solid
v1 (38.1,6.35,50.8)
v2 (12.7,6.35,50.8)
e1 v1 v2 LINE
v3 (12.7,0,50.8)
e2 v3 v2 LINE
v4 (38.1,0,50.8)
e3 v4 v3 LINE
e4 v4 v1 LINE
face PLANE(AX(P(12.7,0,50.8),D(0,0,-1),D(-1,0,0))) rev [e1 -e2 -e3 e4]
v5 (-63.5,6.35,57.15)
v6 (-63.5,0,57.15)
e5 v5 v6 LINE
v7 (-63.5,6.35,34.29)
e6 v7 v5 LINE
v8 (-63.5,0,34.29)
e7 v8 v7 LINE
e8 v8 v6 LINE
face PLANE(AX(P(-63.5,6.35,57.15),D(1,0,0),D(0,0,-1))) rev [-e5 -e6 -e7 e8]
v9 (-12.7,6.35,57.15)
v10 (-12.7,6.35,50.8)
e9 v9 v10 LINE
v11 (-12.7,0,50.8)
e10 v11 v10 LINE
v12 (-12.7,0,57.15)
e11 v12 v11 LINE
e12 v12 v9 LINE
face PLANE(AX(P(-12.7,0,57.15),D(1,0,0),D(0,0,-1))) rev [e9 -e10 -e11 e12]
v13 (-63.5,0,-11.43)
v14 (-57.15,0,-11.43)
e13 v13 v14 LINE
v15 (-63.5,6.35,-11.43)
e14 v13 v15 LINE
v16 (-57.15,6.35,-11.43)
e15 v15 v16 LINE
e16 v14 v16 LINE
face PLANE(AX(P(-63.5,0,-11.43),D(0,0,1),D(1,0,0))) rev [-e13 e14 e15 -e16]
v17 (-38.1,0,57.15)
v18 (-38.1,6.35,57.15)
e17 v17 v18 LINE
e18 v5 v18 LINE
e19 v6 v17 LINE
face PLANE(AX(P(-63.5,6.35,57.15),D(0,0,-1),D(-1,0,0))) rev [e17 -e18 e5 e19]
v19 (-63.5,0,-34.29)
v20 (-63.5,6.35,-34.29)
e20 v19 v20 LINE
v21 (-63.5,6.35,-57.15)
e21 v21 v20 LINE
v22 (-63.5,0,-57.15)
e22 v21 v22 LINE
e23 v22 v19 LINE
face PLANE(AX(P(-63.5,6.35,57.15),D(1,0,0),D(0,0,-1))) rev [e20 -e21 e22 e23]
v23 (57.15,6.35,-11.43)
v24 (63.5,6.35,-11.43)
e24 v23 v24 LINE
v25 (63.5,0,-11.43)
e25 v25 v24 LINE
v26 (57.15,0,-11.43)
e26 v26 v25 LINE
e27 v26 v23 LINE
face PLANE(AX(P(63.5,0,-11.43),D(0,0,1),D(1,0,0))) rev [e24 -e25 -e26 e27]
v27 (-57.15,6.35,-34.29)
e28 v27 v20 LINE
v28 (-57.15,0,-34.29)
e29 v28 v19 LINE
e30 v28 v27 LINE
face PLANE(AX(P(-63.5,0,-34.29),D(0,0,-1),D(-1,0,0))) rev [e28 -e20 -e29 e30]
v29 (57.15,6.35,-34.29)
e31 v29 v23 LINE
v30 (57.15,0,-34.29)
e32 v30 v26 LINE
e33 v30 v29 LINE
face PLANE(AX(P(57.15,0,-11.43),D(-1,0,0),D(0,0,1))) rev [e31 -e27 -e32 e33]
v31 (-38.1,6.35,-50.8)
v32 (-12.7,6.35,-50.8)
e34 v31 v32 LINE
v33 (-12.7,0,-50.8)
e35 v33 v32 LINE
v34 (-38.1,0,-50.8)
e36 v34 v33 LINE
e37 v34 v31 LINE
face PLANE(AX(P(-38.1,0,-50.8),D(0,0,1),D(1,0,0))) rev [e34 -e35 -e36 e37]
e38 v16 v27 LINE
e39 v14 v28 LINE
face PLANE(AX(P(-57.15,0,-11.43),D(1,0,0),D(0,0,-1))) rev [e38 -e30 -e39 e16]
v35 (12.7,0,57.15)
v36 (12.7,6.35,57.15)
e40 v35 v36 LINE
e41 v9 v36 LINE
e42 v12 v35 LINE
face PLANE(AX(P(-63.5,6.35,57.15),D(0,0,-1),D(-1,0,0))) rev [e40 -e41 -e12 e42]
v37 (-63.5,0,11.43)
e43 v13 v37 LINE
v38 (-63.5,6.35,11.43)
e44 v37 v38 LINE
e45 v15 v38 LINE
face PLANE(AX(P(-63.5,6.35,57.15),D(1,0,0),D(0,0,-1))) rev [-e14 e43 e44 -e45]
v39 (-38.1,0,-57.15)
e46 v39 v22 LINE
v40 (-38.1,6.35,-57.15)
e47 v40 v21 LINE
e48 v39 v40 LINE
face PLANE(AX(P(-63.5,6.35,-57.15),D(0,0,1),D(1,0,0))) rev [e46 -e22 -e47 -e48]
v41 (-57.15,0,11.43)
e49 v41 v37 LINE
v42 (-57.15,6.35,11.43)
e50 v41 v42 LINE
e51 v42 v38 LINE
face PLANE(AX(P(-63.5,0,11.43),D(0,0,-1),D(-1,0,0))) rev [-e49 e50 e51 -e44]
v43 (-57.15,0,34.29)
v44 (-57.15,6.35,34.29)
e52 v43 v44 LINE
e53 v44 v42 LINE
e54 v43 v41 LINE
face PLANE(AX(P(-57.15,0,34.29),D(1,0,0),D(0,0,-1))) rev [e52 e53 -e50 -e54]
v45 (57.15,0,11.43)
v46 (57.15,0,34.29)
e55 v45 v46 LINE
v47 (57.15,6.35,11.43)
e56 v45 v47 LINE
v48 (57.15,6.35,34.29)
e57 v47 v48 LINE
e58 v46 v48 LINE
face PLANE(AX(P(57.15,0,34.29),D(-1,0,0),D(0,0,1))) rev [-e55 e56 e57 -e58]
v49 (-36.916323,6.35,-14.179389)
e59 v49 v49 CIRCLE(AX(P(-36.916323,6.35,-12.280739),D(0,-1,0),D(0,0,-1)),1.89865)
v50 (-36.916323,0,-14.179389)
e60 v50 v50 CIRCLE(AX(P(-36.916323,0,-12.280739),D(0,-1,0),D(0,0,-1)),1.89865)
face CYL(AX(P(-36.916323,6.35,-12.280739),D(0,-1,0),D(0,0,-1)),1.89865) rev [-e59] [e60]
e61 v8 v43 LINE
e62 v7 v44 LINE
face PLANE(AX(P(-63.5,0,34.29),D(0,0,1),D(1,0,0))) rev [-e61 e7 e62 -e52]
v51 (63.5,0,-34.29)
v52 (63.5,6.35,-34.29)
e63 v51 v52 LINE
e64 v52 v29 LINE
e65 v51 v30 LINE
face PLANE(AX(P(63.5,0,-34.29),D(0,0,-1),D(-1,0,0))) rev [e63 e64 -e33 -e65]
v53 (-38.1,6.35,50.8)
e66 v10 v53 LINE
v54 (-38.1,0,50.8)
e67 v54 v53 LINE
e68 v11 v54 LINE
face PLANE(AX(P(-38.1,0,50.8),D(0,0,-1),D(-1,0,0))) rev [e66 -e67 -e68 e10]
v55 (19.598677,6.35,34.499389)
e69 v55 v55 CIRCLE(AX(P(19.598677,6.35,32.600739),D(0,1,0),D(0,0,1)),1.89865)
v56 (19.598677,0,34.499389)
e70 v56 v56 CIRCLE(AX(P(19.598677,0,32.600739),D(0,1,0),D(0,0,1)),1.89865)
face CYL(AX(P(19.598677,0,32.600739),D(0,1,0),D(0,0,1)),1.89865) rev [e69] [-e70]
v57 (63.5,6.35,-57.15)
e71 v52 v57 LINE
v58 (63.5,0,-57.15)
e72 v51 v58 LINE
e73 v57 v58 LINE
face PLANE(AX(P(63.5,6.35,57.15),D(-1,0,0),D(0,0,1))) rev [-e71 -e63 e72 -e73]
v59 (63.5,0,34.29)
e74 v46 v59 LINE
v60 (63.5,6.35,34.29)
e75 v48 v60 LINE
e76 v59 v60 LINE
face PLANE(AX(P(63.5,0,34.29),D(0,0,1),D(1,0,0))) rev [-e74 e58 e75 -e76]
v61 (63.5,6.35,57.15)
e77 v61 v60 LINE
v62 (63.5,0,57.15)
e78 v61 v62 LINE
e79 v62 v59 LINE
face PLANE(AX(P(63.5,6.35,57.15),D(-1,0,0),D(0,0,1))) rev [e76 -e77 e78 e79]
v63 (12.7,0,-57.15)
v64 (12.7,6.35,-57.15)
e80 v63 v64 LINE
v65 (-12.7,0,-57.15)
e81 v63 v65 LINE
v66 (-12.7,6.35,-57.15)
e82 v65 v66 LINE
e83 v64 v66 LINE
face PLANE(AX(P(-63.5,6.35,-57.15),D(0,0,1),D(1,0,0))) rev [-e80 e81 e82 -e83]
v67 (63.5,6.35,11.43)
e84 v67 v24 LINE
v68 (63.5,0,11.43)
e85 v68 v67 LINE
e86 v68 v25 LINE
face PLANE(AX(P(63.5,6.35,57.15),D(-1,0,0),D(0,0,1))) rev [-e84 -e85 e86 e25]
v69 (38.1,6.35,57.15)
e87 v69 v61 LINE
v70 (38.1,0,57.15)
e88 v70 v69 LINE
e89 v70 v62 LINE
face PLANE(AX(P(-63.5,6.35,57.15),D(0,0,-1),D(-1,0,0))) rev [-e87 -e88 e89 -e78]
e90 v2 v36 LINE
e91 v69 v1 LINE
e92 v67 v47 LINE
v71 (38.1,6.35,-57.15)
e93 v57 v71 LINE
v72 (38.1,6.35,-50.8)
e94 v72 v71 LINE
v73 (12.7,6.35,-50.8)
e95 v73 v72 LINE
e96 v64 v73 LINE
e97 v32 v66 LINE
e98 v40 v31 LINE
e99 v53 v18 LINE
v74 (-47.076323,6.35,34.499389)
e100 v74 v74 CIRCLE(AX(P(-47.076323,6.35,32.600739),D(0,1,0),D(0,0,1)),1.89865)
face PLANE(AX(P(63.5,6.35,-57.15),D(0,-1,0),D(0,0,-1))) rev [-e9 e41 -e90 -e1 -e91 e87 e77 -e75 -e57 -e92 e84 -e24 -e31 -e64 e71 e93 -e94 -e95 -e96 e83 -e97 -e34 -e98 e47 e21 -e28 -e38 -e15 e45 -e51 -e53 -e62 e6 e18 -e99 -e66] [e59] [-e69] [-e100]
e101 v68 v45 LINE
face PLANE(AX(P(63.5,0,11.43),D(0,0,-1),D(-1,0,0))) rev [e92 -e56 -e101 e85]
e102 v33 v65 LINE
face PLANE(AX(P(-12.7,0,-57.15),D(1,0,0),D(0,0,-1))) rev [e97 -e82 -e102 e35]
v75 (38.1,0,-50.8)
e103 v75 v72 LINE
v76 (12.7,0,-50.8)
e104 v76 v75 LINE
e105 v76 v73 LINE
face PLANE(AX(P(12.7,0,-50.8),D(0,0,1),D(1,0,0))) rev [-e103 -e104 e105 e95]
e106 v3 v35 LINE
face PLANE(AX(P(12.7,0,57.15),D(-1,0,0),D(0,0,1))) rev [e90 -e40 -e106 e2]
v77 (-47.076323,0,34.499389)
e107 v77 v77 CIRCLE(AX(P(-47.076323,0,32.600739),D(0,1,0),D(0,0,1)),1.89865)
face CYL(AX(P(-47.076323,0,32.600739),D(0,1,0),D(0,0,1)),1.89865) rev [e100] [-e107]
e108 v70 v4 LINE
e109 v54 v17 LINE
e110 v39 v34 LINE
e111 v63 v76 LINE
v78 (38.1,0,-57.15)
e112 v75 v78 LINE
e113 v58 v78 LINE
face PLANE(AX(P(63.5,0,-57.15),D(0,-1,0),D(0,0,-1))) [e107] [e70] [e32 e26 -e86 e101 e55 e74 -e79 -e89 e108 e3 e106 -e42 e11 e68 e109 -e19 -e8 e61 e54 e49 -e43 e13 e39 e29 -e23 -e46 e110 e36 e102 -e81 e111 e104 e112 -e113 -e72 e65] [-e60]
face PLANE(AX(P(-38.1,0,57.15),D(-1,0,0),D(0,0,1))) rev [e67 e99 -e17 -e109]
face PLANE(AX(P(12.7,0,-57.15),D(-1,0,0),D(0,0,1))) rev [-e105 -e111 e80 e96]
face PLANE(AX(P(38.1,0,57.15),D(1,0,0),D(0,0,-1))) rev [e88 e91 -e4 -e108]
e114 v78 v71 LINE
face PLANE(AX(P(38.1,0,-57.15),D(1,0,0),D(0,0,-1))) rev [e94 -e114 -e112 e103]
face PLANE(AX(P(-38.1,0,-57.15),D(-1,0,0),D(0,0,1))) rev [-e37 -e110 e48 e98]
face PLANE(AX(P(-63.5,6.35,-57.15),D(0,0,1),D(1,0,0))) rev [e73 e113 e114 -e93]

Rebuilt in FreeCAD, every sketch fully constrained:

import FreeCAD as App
import Part
import Sketcher
Q = App.Units.Quantity


def add_polygon(sketch, points):
    """Adds a closed chain of lines whose ends are joined by coincident constraints."""
    first, n = sketch.GeometryCount, len(points)
    for a, b in zip(points, points[1:] + points[:1]):
        sketch.addGeometry(Part.LineSegment(App.Vector(*a, 0), App.Vector(*b, 0)), False)
    for i in range(n):
        sketch.addConstraint(Sketcher.Constraint("Coincident", first + i, 2, first + (i + 1) % n, 1))

doc = App.newDocument("Part")
body = doc.addObject("PartDesign::Body", "Body")

sketch1 = body.newObject("Sketcher::SketchObject", "Sketch")
sketch1.AttachmentSupport = (doc.getObject("XZ_Plane"), [""])
sketch1.MapMode = "FlatFace"
add_polygon(sketch1, [(-63.5, -57.15), (-63.5, 57.15), (63.5, 57.15), (63.5, -57.15)])
sketch1.addConstraint([
    Sketcher.Constraint("Vertical", 0),
    Sketcher.Constraint("Horizontal", 1),
    Sketcher.Constraint("Vertical", 2),
    Sketcher.Constraint("Horizontal", 3),
    Sketcher.Constraint("Symmetric", 0, 2, 2, 2, -1, 1),
    Sketcher.Constraint("DistanceX", 1, 1, 1, 2, Q("5 in")),
    Sketcher.Constraint("DistanceY", 0, 1, 0, 2, Q("4.5 in")),
])
pad1 = body.newObject("PartDesign::Pad", "Pad")
pad1.Profile = sketch1
pad1.Length = Q("0.25 in")
pad1.Reversed = True

sketch2 = body.newObject("Sketcher::SketchObject", "Sketch001")
sketch2.AttachmentSupport = (doc.getObject("XZ_Plane"), [""])
sketch2.MapMode = "FlatFace"
sketch2.AttachmentOffset = App.Placement(App.Vector(0, 0, -0.25 * 25.4), App.Rotation())
add_polygon(sketch2, [(-63.5, 11.43), (-63.5, 34.29), (-57.15, 34.29), (-57.15, 11.43)])
add_polygon(sketch2, [(-63.5, -34.29), (-63.5, -11.43), (-57.15, -11.43), (-57.15, -34.29)])
add_polygon(sketch2, [(-38.1, -57.15), (-38.1, -50.8), (-12.7, -50.8), (-12.7, -57.15)])
add_polygon(sketch2, [(12.7, -57.15), (12.7, -50.8), (38.1, -50.8), (38.1, -57.15)])
add_polygon(sketch2, [(57.15, -34.29), (57.15, -11.43), (63.5, -11.43), (63.5, -34.29)])
add_polygon(sketch2, [(57.15, 11.43), (57.15, 34.29), (63.5, 34.29), (63.5, 11.43)])
add_polygon(sketch2, [(12.7, 50.8), (12.7, 57.15), (38.1, 57.15), (38.1, 50.8)])
add_polygon(sketch2, [(-38.1, 50.8), (-38.1, 57.15), (-12.7, 57.15), (-12.7, 50.8)])
sketch2.addConstraint([
    Sketcher.Constraint("Vertical", 0),
    Sketcher.Constraint("Horizontal", 1),
    Sketcher.Constraint("Vertical", 2),
    Sketcher.Constraint("Horizontal", 3),
    Sketcher.Constraint("Vertical", 4),
    Sketcher.Constraint("Horizontal", 5),
    Sketcher.Constraint("Vertical", 6),
    Sketcher.Constraint("Horizontal", 7),
    Sketcher.Constraint("Vertical", 8),
    Sketcher.Constraint("Horizontal", 9),
    Sketcher.Constraint("Vertical", 10),
    Sketcher.Constraint("Horizontal", 11),
    Sketcher.Constraint("Vertical", 12),
    Sketcher.Constraint("Horizontal", 13),
    Sketcher.Constraint("Vertical", 14),
    Sketcher.Constraint("Horizontal", 15),
    Sketcher.Constraint("Vertical", 16),
    Sketcher.Constraint("Horizontal", 17),
    Sketcher.Constraint("Vertical", 18),
    Sketcher.Constraint("Horizontal", 19),
    Sketcher.Constraint("Vertical", 20),
    Sketcher.Constraint("Horizontal", 21),
    Sketcher.Constraint("Vertical", 22),
    Sketcher.Constraint("Horizontal", 23),
    Sketcher.Constraint("Vertical", 24),
    Sketcher.Constraint("Horizontal", 25),
    Sketcher.Constraint("Vertical", 26),
    Sketcher.Constraint("Horizontal", 27),
    Sketcher.Constraint("Vertical", 28),
    Sketcher.Constraint("Horizontal", 29),
    Sketcher.Constraint("Vertical", 30),
    Sketcher.Constraint("Horizontal", 31),
    Sketcher.Constraint("Symmetric", 2, 2, 16, 2, -1, 1),
    Sketcher.Constraint("Symmetric", 0, 2, 18, 2, -1, 1),
    Sketcher.Constraint("Symmetric", 6, 2, 20, 2, -1, 1),
    Sketcher.Constraint("Symmetric", 4, 2, 22, 2, -1, 1),
    Sketcher.Constraint("Symmetric", 10, 2, 24, 2, -1, 1),
    Sketcher.Constraint("Symmetric", 8, 2, 26, 2, -1, 1),
    Sketcher.Constraint("Symmetric", 14, 2, 28, 2, -1, 1),
    Sketcher.Constraint("Symmetric", 12, 2, 30, 2, -1, 1),
    Sketcher.Constraint("Symmetric", 9, 2, 12, 2, -2),
    Sketcher.Constraint("Symmetric", 11, 2, 14, 2, -2),
    Sketcher.Constraint("Symmetric", 5, 2, 16, 2, -2),
    Sketcher.Constraint("Symmetric", 7, 2, 18, 2, -2),
    Sketcher.Constraint("Equal", 23, 8),
    Sketcher.Constraint("DistanceX", 9, 1, 9, 2, Q("1 in")),
    Sketcher.Constraint("DistanceY", 0, 1, 0, 2, Q("0.9 in")),
    Sketcher.Constraint("DistanceY", 8, 2, -1, 1, Q("2 in")),
    Sketcher.Constraint("DistanceX", 7, 2, 8, 2, Q("1 in")),
    Sketcher.Constraint("DistanceX", 9, 2, 12, 2, Q("1 in")),
    Sketcher.Constraint("DistanceX", 1, 1, 1, 2, Q("0.25 in")),
    Sketcher.Constraint("DistanceY", 4, 2, 3, 2, Q("0.9 in")),
])
pocket1 = body.newObject("PartDesign::Pocket", "Pocket")
pocket1.Profile = sketch2
pocket1.Type = "ThroughAll"
pocket1.Reversed = True

sketch3 = body.newObject("Sketcher::SketchObject", "Sketch002")
sketch3.AttachmentSupport = (doc.getObject("XZ_Plane"), [""])
sketch3.MapMode = "FlatFace"
sketch3.AttachmentOffset = App.Placement(App.Vector(0, 0, -0.25 * 25.4), App.Rotation())
sketch3.addGeometry([
    Part.Circle(App.Vector(-47.076323, 32.600739, 0), App.Vector(0, 0, 1), 1.89865),
    Part.Circle(App.Vector(19.598677, 32.600739, 0), App.Vector(0, 0, 1), 1.89865),
], False)
sketch3.addConstraint([
    Sketcher.Constraint("Equal", 0, 1),
    Sketcher.Constraint("Horizontal", 0, 3, 1, 3),
    Sketcher.Constraint("Diameter", 0, Q("0.1495 in")),
    Sketcher.Constraint("DistanceX", 0, 3, 1, 3, Q("2.625 in")),
    Sketcher.Constraint("DistanceY", -1, 1, 0, 3, 32.600739),
    Sketcher.Constraint("DistanceX", 0, 3, -1, 1, 47.076323),
])
pocket2 = body.newObject("PartDesign::Pocket", "Pocket001")
pocket2.Profile = sketch3
pocket2.Type = "ThroughAll"
pocket2.Reversed = True

sketch4 = body.newObject("Sketcher::SketchObject", "Sketch003")
sketch4.AttachmentSupport = (doc.getObject("XZ_Plane"), [""])
sketch4.MapMode = "FlatFace"
sketch4.addGeometry(Part.Circle(App.Vector(-36.916323, -12.280739, 0), App.Vector(0, 0, 1), 1.89865), False)
sketch4.addConstraint([
    Sketcher.Constraint("Diameter", 0, Q("0.1495 in")),
    Sketcher.Constraint("DistanceY", 0, 3, -1, 1, 12.280739),
    Sketcher.Constraint("DistanceX", 0, 3, -1, 1, 36.916323),
])
pocket3 = body.newObject("PartDesign::Pocket", "Pocket002")
pocket3.Profile = sketch4
pocket3.Type = "ThroughAll"

doc.recompute()
